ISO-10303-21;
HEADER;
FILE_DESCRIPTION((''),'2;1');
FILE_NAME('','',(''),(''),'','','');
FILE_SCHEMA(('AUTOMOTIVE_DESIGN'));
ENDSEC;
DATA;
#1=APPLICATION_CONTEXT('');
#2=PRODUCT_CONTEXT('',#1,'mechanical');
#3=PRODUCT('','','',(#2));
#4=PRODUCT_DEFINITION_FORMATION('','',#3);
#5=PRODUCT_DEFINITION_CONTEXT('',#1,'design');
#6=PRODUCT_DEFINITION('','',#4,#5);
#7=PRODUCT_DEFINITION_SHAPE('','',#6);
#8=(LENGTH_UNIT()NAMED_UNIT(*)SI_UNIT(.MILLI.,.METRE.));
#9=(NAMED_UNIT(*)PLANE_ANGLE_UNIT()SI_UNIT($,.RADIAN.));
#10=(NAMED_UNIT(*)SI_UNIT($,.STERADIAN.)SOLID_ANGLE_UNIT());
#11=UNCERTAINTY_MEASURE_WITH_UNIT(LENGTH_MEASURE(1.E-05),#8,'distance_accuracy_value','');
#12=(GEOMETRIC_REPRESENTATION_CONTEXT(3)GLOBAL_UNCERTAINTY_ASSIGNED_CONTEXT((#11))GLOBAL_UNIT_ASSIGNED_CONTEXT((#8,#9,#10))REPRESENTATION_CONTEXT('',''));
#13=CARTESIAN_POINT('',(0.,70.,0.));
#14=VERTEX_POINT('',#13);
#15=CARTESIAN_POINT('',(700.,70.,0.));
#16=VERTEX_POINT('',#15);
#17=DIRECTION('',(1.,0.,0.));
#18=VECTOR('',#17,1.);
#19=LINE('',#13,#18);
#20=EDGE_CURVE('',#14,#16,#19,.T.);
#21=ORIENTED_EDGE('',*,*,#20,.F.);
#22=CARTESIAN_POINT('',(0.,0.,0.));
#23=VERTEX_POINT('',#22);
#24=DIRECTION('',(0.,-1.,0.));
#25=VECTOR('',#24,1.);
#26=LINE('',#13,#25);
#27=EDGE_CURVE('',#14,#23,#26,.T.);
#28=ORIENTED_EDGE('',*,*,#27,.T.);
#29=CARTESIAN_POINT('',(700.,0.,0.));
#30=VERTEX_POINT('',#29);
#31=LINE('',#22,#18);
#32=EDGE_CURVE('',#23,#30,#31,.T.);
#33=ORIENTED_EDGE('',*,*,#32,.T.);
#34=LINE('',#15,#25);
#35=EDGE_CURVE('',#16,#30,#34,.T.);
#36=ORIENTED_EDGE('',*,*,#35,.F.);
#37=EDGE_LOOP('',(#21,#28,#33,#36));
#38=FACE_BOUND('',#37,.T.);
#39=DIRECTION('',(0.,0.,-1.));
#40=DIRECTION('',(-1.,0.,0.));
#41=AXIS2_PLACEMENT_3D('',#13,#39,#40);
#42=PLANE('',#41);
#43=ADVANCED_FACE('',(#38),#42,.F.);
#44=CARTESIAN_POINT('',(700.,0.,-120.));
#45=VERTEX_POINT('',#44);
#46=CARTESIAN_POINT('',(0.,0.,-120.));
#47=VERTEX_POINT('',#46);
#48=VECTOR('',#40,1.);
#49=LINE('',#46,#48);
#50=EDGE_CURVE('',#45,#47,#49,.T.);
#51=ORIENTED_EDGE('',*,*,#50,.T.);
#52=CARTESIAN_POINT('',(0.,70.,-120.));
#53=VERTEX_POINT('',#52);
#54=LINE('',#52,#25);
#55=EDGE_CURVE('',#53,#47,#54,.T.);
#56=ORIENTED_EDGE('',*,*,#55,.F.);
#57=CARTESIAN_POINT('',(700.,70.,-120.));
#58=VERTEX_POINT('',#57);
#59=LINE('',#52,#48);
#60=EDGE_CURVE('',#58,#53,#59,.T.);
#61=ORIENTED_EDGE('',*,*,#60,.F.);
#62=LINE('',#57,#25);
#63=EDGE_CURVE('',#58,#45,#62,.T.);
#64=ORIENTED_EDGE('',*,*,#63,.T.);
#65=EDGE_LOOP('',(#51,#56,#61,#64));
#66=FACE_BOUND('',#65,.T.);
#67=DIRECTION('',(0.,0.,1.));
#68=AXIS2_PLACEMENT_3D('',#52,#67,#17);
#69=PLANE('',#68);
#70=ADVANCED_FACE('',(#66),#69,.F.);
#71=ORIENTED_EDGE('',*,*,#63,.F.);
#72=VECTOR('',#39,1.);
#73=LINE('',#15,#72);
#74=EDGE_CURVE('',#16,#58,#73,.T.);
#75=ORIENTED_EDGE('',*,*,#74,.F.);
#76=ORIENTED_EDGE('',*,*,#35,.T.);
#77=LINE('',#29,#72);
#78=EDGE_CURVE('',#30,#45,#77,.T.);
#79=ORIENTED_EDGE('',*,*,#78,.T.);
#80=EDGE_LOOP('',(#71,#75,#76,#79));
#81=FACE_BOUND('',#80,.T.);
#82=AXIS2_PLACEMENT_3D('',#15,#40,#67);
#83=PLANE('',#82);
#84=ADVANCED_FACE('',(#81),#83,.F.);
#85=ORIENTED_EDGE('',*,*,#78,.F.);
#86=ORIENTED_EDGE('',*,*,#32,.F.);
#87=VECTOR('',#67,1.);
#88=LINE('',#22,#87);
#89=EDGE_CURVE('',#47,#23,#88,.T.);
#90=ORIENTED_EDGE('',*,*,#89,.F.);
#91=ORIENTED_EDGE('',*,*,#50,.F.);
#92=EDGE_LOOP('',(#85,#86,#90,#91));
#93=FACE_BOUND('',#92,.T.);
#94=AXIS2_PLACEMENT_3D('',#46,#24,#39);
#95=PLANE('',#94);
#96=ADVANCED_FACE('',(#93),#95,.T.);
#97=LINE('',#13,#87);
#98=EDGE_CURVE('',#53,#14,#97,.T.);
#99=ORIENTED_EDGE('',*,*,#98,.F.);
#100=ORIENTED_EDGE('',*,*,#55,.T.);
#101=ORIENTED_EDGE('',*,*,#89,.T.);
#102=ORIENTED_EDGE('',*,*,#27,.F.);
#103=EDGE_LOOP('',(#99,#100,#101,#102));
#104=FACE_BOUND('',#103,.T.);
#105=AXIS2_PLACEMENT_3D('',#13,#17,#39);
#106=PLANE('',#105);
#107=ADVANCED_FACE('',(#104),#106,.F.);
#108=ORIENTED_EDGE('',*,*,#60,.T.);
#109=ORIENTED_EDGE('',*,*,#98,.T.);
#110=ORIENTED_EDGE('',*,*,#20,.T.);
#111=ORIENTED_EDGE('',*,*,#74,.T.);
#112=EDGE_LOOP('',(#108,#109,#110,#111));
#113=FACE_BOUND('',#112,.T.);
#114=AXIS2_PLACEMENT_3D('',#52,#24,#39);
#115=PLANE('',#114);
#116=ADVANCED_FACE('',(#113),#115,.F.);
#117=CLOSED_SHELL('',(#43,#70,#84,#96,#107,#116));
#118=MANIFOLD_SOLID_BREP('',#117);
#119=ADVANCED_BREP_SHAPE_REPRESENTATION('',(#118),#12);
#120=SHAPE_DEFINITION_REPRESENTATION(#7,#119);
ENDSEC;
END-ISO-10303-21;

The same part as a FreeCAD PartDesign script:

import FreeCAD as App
import Part
import Sketcher

V = App.Vector
Q = App.Units.Quantity

doc = App.newDocument("Part")
params = doc.addObject("Spreadsheet::Sheet", "Params")
for row, (alias, value) in enumerate([
    ("sketch1_width", "700 mm"),
    ("sketch1_height", "120 mm"),
    ("pad1_length", "70 mm"),
], start=1):
    params.set(f"A{row}", alias)
    params.set(f"B{row}", "=" + value)
    params.setAlias(f"B{row}", alias)

body = doc.addObject("PartDesign::Body", "Body")

# Sketch on XZ plane
sketch1 = doc.addObject("Sketcher::SketchObject", "Sketch")
body.addObject(sketch1)
sketch1.AttachmentSupport = (doc.XZ_Plane, [""])
sketch1.MapMode = "FlatFace"
sketch1.addGeometry([
    Part.LineSegment(V(0, -120, 0), V(0, 0, 0)),
    Part.LineSegment(V(0, 0, 0), V(700, 0, 0)),
    Part.LineSegment(V(700, 0, 0), V(700, -120, 0)),
    Part.LineSegment(V(700, -120, 0), V(0, -120, 0)),
], False)
sketch1.addConstraint([
    Sketcher.Constraint("Coincident", 0, 2, 1, 1),
    Sketcher.Constraint("Coincident", 1, 2, 2, 1),
    Sketcher.Constraint("Coincident", 2, 2, 3, 1),
    Sketcher.Constraint("Coincident", 3, 2, 0, 1),
    Sketcher.Constraint("Vertical", 0),
    Sketcher.Constraint("Horizontal", 1),
    Sketcher.Constraint("Vertical", 2),
    Sketcher.Constraint("Horizontal", 3),
    Sketcher.Constraint("Coincident", 0, 2, -1, 1),
    Sketcher.Constraint("DistanceX", 1, 1, 1, 2, Q("700 mm")),
    Sketcher.Constraint("DistanceY", 0, 1, 0, 2, Q("120 mm")),
])
sketch1.setExpression("Constraints[9]", "Params.sketch1_width")
sketch1.setExpression("Constraints[10]", "Params.sketch1_height")
pad1 = doc.addObject("PartDesign::Pad", "Pad")
body.addObject(pad1)
pad1.Profile = sketch1
pad1.setExpression("Length", "Params.pad1_length")
pad1.Reversed = True

doc.recompute()
